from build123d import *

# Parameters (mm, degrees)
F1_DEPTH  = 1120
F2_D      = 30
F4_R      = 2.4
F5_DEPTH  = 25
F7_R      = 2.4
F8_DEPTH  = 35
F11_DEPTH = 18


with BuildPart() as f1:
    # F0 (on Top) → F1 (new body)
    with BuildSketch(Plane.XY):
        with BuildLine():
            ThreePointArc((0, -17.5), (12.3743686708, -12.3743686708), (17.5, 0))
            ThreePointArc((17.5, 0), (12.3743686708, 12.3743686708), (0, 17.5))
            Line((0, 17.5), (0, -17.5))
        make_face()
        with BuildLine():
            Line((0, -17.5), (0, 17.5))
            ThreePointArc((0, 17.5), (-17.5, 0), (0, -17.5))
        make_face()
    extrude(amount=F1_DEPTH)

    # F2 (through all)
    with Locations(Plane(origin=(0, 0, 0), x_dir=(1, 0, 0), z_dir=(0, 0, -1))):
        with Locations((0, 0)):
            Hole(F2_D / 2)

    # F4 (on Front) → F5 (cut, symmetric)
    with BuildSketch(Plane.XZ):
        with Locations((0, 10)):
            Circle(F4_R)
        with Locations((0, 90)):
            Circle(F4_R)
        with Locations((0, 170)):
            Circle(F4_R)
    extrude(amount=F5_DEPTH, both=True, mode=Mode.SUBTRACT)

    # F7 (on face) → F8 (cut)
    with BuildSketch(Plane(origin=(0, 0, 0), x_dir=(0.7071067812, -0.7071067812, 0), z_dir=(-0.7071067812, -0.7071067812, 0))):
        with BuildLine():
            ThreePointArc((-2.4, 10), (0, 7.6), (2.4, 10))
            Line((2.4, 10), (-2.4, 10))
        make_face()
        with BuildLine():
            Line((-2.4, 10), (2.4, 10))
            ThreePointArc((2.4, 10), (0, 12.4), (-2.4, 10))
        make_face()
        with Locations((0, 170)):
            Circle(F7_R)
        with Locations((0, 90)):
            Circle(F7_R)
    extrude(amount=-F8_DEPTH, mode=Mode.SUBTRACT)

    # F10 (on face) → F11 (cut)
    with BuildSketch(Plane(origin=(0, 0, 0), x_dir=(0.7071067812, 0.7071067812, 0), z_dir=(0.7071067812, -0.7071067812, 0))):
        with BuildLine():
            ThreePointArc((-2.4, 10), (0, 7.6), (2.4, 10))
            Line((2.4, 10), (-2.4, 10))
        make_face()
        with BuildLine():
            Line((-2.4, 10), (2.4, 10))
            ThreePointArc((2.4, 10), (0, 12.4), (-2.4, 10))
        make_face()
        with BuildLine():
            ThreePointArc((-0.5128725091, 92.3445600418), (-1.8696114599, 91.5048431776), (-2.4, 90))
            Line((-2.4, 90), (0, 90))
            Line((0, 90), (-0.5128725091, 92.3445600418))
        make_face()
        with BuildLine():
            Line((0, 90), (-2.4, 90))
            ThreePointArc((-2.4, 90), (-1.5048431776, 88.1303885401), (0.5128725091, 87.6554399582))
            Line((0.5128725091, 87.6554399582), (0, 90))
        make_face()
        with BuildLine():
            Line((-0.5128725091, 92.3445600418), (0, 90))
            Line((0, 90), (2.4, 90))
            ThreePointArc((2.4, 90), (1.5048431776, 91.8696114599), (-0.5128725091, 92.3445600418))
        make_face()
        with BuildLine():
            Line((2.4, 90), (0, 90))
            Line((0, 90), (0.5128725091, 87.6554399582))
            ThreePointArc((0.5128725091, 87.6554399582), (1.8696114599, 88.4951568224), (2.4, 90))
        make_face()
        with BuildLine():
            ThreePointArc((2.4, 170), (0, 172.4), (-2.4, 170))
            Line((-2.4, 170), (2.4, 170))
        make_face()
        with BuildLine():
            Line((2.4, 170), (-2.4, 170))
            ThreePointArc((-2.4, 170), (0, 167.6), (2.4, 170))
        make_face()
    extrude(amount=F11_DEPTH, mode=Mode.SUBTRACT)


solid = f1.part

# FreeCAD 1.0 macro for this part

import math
import FreeCAD as App
import Part
import Sketcher
Q = App.Units.Quantity

doc = App.newDocument("Part")
params = doc.addObject("Spreadsheet::Sheet", "Params")
for row, (alias, value) in enumerate([
    ("sketch1_radius", "17.5 mm"),
    ("pad1_length", "1120 mm"),
    ("sketch2_diameter", "30 mm"),
    ("hole_diameter", "30 mm"),
    ("sketch3_diameter", "4.8 mm"),
    ("pocket1_length", "50 mm"),
    ("sketch4_diameter", "4.8 mm"),
    ("pocket2_length", "35 mm"),
    ("sketch5_diameter", "4.8 mm"),
    ("pocket3_length", "18 mm"),
], start=1):
    params.set(f"A{row}", alias)
    params.set(f"B{row}", "=" + value)
    params.setAlias(f"B{row}", alias)

body = doc.addObject("PartDesign::Body", "Body")

# Sketch on XY plane
sketch1 = doc.addObject("Sketcher::SketchObject", "Sketch")
body.addObject(sketch1)
sketch1.AttachmentSupport = (doc.XY_Plane, [""])
sketch1.MapMode = "FlatFace"
sketch1.addGeometry([
    Part.ArcOfCircle(Part.Circle(App.Vector(0, 0, 0), App.Vector(0, 0, 1), 18), math.radians(-90), math.radians(0)),
    Part.ArcOfCircle(Part.Circle(App.Vector(0, 0, 0), App.Vector(0, 0, 1), 18), math.radians(0), math.radians(90)),
    Part.ArcOfCircle(Part.Circle(App.Vector(0, 0, 0), App.Vector(0, 0, 1), 18), math.radians(90), math.radians(270)),
], False)
sketch1.addConstraint([
    Sketcher.Constraint("Tangent", 0, 2, 1, 1),
    Sketcher.Constraint("Tangent", 1, 2, 2, 1),
    Sketcher.Constraint("Tangent", 2, 2, 0, 1),
    Sketcher.Constraint("Coincident", 0, 3, -1, 1),
    Sketcher.Constraint("PointOnObject", 0, 2, -1),
    Sketcher.Constraint("PointOnObject", 1, 2, -2),
    Sketcher.Constraint("PointOnObject", 2, 2, -2),
    Sketcher.Constraint("Radius", 0, Q("17.5 mm")),
])
sketch1.setExpression("Constraints[7]", "Params.sketch1_radius")
pad1 = doc.addObject("PartDesign::Pad", "Pad")
body.addObject(pad1)
pad1.Profile = sketch1
pad1.setExpression("Length", "Params.pad1_length")

# Sketch on XY plane
sketch2 = doc.addObject("Sketcher::SketchObject", "Sketch001")
body.addObject(sketch2)
sketch2.AttachmentSupport = (doc.XY_Plane, [""])
sketch2.MapMode = "FlatFace"
sketch2.addGeometry(Part.Circle(App.Vector(0, 0, 0), App.Vector(0, 0, 1), 15), False)
sketch2.addConstraint([
    Sketcher.Constraint("Coincident", 0, 3, -1, 1),
    Sketcher.Constraint("Diameter", 0, Q("30 mm")),
])
sketch2.setExpression("Constraints[1]", "Params.sketch2_diameter")
doc.recompute()
hole = doc.addObject("PartDesign::Hole", "Hole")
body.addObject(hole)
hole.Profile = sketch2
hole.ThreadType = "None"
hole.setExpression("Diameter", "Params.hole_diameter")
hole.DepthType = "ThroughAll"
hole.Reversed = True

# Sketch on XZ plane
sketch3 = doc.addObject("Sketcher::SketchObject", "Sketch002")
body.addObject(sketch3)
sketch3.AttachmentSupport = (doc.XZ_Plane, [""])
sketch3.MapMode = "FlatFace"
sketch3.addGeometry([
    Part.Circle(App.Vector(0, 10, 0), App.Vector(0, 0, 1), 2.4),
    Part.Circle(App.Vector(0, 90, 0), App.Vector(0, 0, 1), 2.4),
    Part.Circle(App.Vector(0, 170, 0), App.Vector(0, 0, 1), 2.4),
], False)
sketch3.addConstraint([
    Sketcher.Constraint("Equal", 0, 1),
    Sketcher.Constraint("Equal", 1, 2),
    Sketcher.Constraint("PointOnObject", 0, 3, -2),
    Sketcher.Constraint("PointOnObject", 1, 3, -2),
    Sketcher.Constraint("PointOnObject", 2, 3, -2),
    Sketcher.Constraint("Diameter", 0, Q("4.8 mm")),
    Sketcher.Constraint("DistanceY", -1, 1, 0, 3, Q("10 mm")),
    Sketcher.Constraint("DistanceY", -1, 1, 1, 3, Q("90 mm")),
    Sketcher.Constraint("DistanceY", -1, 1, 2, 3, Q("170 mm")),
])
sketch3.setExpression("Constraints[5]", "Params.sketch3_diameter")
pocket1 = doc.addObject("PartDesign::Pocket", "Pocket")
body.addObject(pocket1)
pocket1.Profile = sketch3
pocket1.setExpression("Length", "Params.pocket1_length")
pocket1.Midplane = True

# Sketch on an angled plane
sketch4 = doc.addObject("Sketcher::SketchObject", "Sketch003")
body.addObject(sketch4)
sketch4.Placement = App.Placement(App.Vector(0, 0, 0), App.Rotation(App.Vector(0.707106781, -0.707106781, 0), App.Vector(0, 0, 0.999999999), App.Vector(-0.707106781, -0.707106781, 0), "ZXY"))
sketch4.addGeometry([
    Part.Circle(App.Vector(0, 10, 0), App.Vector(0, 0, 1), 2.4),
    Part.Circle(App.Vector(0, 170, 0), App.Vector(0, 0, 1), 2.4),
    Part.Circle(App.Vector(0, 90, 0), App.Vector(0, 0, 1), 2.4),
], False)
sketch4.addConstraint([
    Sketcher.Constraint("Equal", 0, 1),
    Sketcher.Constraint("Equal", 1, 2),
    Sketcher.Constraint("PointOnObject", 0, 3, -2),
    Sketcher.Constraint("PointOnObject", 1, 3, -2),
    Sketcher.Constraint("PointOnObject", 2, 3, -2),
    Sketcher.Constraint("Diameter", 0, Q("4.8 mm")),
    Sketcher.Constraint("DistanceY", -1, 1, 0, 3, Q("10 mm")),
    Sketcher.Constraint("DistanceY", -1, 1, 1, 3, Q("170 mm")),
    Sketcher.Constraint("DistanceY", -1, 1, 2, 3, Q("90 mm")),
])
sketch4.setExpression("Constraints[5]", "Params.sketch4_diameter")
pocket2 = doc.addObject("PartDesign::Pocket", "Pocket001")
body.addObject(pocket2)
pocket2.Profile = sketch4
pocket2.setExpression("Length", "Params.pocket2_length")

# Sketch on an angled plane
sketch5 = doc.addObject("Sketcher::SketchObject", "Sketch004")
body.addObject(sketch5)
sketch5.Placement = App.Placement(App.Vector(0, 0, 0), App.Rotation(App.Vector(0.707106781, 0.707106781, 0), App.Vector(0, 0, 0.999999999), App.Vector(0.707106781, -0.707106781, 0), "ZXY"))
sketch5.addGeometry([
    Part.Circle(App.Vector(0, 10, 0), App.Vector(0, 0, 1), 2.4),  # 0
    Part.ArcOfCircle(Part.Circle(App.Vector(0, 90, 0), App.Vector(0, 0, 1), 2.4), math.radians(102), math.radians(180)),  # 1
    Part.ArcOfCircle(Part.Circle(App.Vector(0, 90, 0), App.Vector(0, 0, 1), 2.4), math.radians(180), math.radians(282)),  # 2
    Part.ArcOfCircle(Part.Circle(App.Vector(0, 90, 0), App.Vector(0, 0, 1), 2.4), math.radians(-78), math.radians(0)),  # 3
    Part.ArcOfCircle(Part.Circle(App.Vector(0, 90, 0), App.Vector(0, 0, 1), 2.4), math.radians(0), math.radians(102)),  # 4
    Part.Circle(App.Vector(0, 170, 0), App.Vector(0, 0, 1), 2.4),  # 5
], False)
sketch5.addConstraint([
    Sketcher.Constraint("Tangent", 1, 2, 2, 1),
    Sketcher.Constraint("Tangent", 2, 2, 3, 1),
    Sketcher.Constraint("Tangent", 3, 2, 4, 1),
    Sketcher.Constraint("Tangent", 4, 2, 1, 1),
    Sketcher.Constraint("Equal", 0, 1),
    Sketcher.Constraint("Equal", 1, 2),
    Sketcher.Constraint("Equal", 4, 5),
    Sketcher.Constraint("Symmetric", 1, 2, 3, 2, -2),
    Sketcher.Constraint("PointOnObject", 0, 3, -2),
    Sketcher.Constraint("PointOnObject", 5, 3, -2),
    Sketcher.Constraint("Horizontal", 4, 3, 1, 2),
    Sketcher.Constraint("Diameter", 0, Q("4.8 mm")),
    Sketcher.Constraint("DistanceY", -1, 1, 0, 3, Q("10 mm")),
    Sketcher.Constraint("DistanceY", -1, 1, 1, 3, Q("90 mm")),
    Sketcher.Constraint("DistanceY", -1, 1, 5, 3, Q("170 mm")),
    Sketcher.Constraint("DistanceY", -1, 1, 2, 2, Q("87.65544 mm")),
    Sketcher.Constraint("DistanceY", -1, 1, 4, 2, Q("92.34456 mm")),
])
sketch5.setExpression("Constraints[11]", "Params.sketch5_diameter")
pocket3 = doc.addObject("PartDesign::Pocket", "Pocket002")
body.addObject(pocket3)
pocket3.Profile = sketch5
pocket3.setExpression("Length", "Params.pocket3_length")
pocket3.Reversed = True

doc.recompute()
